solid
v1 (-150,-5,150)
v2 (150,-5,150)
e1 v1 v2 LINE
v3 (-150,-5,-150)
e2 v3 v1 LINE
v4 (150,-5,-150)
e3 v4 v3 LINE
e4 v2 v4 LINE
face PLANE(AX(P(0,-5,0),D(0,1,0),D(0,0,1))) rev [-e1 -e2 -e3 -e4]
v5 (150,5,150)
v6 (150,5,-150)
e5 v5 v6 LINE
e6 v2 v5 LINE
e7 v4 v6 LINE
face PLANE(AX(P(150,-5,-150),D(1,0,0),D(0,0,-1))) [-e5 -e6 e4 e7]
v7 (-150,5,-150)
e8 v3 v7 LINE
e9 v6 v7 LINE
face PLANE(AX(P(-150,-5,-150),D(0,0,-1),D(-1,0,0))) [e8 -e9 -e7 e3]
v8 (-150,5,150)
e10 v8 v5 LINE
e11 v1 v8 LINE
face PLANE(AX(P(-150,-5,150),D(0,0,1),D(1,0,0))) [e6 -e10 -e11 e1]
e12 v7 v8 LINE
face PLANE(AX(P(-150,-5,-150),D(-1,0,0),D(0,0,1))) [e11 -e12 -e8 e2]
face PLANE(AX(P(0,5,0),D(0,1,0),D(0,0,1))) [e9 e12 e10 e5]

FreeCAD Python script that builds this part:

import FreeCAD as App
import Part
import Sketcher

V = App.Vector


def add_polygon(sketch, points):
    """Adds a closed chain of lines whose ends are joined by coincident constraints."""
    first, n = sketch.GeometryCount, len(points)
    for a, b in zip(points, points[1:] + points[:1]):
        sketch.addGeometry(Part.LineSegment(App.Vector(*a, 0), App.Vector(*b, 0)), False)
    for i in range(n):
        sketch.addConstraint(Sketcher.Constraint("Coincident", first + i, 2, first + (i + 1) % n, 1))

doc = App.newDocument("Part")
body = doc.addObject("PartDesign::Body", "Body")

sketch1 = doc.addObject("Sketcher::SketchObject", "Sketch")
body.addObject(sketch1)
sketch1.AttachmentSupport = (doc.XZ_Plane, [""])
sketch1.MapMode = "FlatFace"
add_polygon(sketch1, [(-150, -150), (-150, 150), (150, 150), (150, -150)])
sketch1.addConstraint([
    Sketcher.Constraint("Vertical", 0),
    Sketcher.Constraint("Horizontal", 1),
    Sketcher.Constraint("Vertical", 2),
    Sketcher.Constraint("Horizontal", 3),
    Sketcher.Constraint("Symmetric", 0, 2, 2, 2, -1, 1),
    Sketcher.Constraint("Equal", 3, 0),
    Sketcher.Constraint("DistanceX", 1, 1, 1, 2, 300.0),
])
pad1 = doc.addObject("PartDesign::Pad", "Pad")
body.addObject(pad1)
pad1.Profile = sketch1
pad1.Length = 10
pad1.Midplane = True

doc.recompute()
